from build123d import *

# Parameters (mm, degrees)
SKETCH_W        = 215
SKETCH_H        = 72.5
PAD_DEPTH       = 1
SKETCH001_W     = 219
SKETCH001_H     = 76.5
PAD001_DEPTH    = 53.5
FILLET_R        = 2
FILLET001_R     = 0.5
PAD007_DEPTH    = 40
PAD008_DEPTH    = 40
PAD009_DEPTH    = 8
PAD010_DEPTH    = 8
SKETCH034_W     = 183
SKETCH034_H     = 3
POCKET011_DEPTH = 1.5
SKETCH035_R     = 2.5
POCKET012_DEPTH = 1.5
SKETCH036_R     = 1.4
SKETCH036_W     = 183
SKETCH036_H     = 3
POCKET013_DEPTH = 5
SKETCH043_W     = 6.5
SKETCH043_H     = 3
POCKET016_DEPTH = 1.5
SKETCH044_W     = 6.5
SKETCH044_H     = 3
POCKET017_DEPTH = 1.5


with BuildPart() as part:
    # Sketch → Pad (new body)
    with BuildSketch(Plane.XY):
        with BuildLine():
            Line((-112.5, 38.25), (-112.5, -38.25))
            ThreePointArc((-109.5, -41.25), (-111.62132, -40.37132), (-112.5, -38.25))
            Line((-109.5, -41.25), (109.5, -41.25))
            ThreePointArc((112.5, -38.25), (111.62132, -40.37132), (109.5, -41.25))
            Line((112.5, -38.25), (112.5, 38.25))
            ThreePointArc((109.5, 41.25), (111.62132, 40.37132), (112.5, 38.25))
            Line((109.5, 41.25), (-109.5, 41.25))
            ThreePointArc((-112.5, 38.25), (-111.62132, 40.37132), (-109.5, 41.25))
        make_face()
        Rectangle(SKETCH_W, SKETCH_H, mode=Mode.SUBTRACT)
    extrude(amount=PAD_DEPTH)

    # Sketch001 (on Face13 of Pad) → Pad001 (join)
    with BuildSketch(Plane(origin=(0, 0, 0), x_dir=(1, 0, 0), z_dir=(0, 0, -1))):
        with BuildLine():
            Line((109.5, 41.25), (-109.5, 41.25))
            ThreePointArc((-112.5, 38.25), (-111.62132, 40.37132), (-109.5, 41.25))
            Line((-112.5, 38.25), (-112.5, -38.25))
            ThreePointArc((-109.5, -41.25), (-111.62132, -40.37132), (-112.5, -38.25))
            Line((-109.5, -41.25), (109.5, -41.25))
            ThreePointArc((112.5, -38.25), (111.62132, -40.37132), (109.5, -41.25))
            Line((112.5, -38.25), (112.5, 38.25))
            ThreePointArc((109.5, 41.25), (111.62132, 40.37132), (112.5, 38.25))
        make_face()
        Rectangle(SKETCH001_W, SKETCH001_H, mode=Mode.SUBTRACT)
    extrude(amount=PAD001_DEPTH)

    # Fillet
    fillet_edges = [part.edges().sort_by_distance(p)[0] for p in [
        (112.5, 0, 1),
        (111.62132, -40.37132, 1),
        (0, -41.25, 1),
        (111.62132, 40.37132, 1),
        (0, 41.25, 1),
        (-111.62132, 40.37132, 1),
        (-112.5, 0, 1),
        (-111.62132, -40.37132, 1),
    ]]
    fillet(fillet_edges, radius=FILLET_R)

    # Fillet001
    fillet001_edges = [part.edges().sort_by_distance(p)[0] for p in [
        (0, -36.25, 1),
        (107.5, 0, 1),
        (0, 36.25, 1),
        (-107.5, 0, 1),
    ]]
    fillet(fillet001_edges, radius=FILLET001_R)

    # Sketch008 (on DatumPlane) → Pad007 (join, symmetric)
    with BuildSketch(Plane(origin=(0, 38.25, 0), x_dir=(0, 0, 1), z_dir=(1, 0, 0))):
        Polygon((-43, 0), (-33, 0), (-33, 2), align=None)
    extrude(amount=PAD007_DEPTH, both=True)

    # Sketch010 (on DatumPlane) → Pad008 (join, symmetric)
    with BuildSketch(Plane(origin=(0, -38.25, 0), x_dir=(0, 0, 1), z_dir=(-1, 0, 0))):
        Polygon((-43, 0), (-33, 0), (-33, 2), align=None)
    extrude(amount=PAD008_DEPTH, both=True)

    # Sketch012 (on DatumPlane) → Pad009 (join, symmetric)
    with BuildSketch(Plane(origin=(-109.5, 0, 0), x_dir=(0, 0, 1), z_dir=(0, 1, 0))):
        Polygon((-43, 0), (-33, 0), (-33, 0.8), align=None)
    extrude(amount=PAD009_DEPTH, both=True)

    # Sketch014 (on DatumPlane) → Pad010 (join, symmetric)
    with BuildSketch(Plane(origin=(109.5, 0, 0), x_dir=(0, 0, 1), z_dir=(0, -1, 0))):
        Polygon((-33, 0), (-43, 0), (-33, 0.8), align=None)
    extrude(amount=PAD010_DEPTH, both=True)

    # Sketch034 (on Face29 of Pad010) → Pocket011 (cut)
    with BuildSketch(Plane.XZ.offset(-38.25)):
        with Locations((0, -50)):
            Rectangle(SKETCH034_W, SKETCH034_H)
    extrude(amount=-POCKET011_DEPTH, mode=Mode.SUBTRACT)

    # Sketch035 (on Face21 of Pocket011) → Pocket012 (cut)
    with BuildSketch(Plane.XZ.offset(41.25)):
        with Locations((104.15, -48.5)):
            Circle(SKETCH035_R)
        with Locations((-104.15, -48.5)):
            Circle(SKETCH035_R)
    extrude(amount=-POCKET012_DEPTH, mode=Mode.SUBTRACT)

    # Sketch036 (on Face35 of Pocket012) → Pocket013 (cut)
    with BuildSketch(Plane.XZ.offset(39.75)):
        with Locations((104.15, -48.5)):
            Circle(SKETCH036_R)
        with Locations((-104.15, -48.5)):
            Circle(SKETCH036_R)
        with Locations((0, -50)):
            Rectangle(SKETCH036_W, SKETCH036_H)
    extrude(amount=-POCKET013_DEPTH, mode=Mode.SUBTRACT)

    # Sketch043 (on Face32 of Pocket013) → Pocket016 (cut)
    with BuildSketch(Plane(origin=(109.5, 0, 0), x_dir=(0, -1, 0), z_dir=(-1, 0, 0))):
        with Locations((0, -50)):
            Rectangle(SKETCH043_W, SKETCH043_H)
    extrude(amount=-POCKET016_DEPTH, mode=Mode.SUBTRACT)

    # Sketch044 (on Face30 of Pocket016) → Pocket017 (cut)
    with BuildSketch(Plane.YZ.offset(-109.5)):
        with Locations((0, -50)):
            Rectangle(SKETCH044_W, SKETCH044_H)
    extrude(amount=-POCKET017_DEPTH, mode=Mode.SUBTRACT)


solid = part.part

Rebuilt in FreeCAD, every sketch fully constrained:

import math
import FreeCAD as App
import Part
import Sketcher
from FreeCAD import Vector


def edges_at(feature, points):
    """Names of the edges that pass closest to the given points."""
    edges = feature.Shape.Edges
    near = lambda p: min(range(len(edges)), key=lambda i: edges[i].distToShape(Part.Vertex(*p))[0])
    return sorted({f"Edge{near(p) + 1}" for p in points})

doc = App.newDocument("Part")
body = doc.addObject("PartDesign::Body", "Body")

sketch1 = body.newObject("Sketcher::SketchObject", "Sketch")
sketch1.AttachmentSupport = (doc.getObject("XY_Plane"), [""])
sketch1.MapMode = "FlatFace"
sketch1.addGeometry(Part.LineSegment(Vector(-112.5, 38.2, 0), Vector(-112.5, -38.2, 0)), False)
sketch1.addGeometry(Part.ArcOfCircle(Part.Circle(Vector(-109.5, -38.2, 0), Vector(0, 0, 1), 3), math.radians(-180), math.radians(-90)), False)
sketch1.addGeometry(Part.LineSegment(Vector(-109.5, -41.2, 0), Vector(109.5, -41.2, 0)), False)
sketch1.addGeometry(Part.ArcOfCircle(Part.Circle(Vector(109.5, -38.2, 0), Vector(0, 0, 1), 3), math.radians(-90), math.radians(0)), False)
sketch1.addGeometry(Part.LineSegment(Vector(112.5, -38.2, 0), Vector(112.5, 38.2, 0)), False)
sketch1.addGeometry(Part.ArcOfCircle(Part.Circle(Vector(109.5, 38.2, 0), Vector(0, 0, 1), 3), math.radians(0), math.radians(90)), False)
sketch1.addGeometry(Part.LineSegment(Vector(109.5, 41.2, 0), Vector(-109.5, 41.2, 0)), False)
sketch1.addGeometry(Part.ArcOfCircle(Part.Circle(Vector(-109.5, 38.2, 0), Vector(0, 0, 1), 3), math.radians(90), math.radians(180)), False)
sketch1.addGeometry(Part.LineSegment(Vector(107.5, -36.2, 0), Vector(-107.5, -36.2, 0)), False)
sketch1.addGeometry(Part.LineSegment(Vector(-107.5, -36.2, 0), Vector(-107.5, 36.2, 0)), False)
sketch1.addGeometry(Part.LineSegment(Vector(-107.5, 36.2, 0), Vector(107.5, 36.2, 0)), False)
sketch1.addGeometry(Part.LineSegment(Vector(107.5, 36.2, 0), Vector(107.5, -36.2, 0)), False)
sketch1.addConstraint(Sketcher.Constraint("Tangent", 0, 2, 1, 1))
sketch1.addConstraint(Sketcher.Constraint("Tangent", 1, 2, 2, 1))
sketch1.addConstraint(Sketcher.Constraint("Tangent", 2, 2, 3, 1))
sketch1.addConstraint(Sketcher.Constraint("Tangent", 3, 2, 4, 1))
sketch1.addConstraint(Sketcher.Constraint("Tangent", 4, 2, 5, 1))
sketch1.addConstraint(Sketcher.Constraint("Tangent", 5, 2, 6, 1))
sketch1.addConstraint(Sketcher.Constraint("Tangent", 6, 2, 7, 1))
sketch1.addConstraint(Sketcher.Constraint("Tangent", 7, 2, 0, 1))
sketch1.addConstraint(Sketcher.Constraint("Coincident", 8, 2, 9, 1))
sketch1.addConstraint(Sketcher.Constraint("Coincident", 9, 2, 10, 1))
sketch1.addConstraint(Sketcher.Constraint("Coincident", 10, 2, 11, 1))
sketch1.addConstraint(Sketcher.Constraint("Coincident", 11, 2, 8, 1))
sketch1.addConstraint(Sketcher.Constraint("Vertical", 0))
sketch1.addConstraint(Sketcher.Constraint("Horizontal", 2))
sketch1.addConstraint(Sketcher.Constraint("Vertical", 4))
sketch1.addConstraint(Sketcher.Constraint("Horizontal", 6))
sketch1.addConstraint(Sketcher.Constraint("Horizontal", 8))
sketch1.addConstraint(Sketcher.Constraint("Vertical", 9))
sketch1.addConstraint(Sketcher.Constraint("Horizontal", 10))
sketch1.addConstraint(Sketcher.Constraint("Vertical", 11))
sketch1.addConstraint(Sketcher.Constraint("Equal", 1, 3))
sketch1.addConstraint(Sketcher.Constraint("Equal", 3, 5))
sketch1.addConstraint(Sketcher.Constraint("Equal", 5, 7))
sketch1.addConstraint(Sketcher.Constraint("Symmetric", 1, 3, 5, 3, -1, 1))
sketch1.addConstraint(Sketcher.Constraint("Symmetric", 8, 2, 10, 2, -1, 1))
sketch1.addConstraint(Sketcher.Constraint("Radius", 1, 3.000001))
sketch1.addConstraint(Sketcher.Constraint("DistanceX", 2, 1, 2, 2, 219.0))
sketch1.addConstraint(Sketcher.Constraint("DistanceX", 8, 2, 8, 1, 215.0))
sketch1.addConstraint(Sketcher.Constraint("DistanceY", 0, 2, 0, 1, 76.5))
sketch1.addConstraint(Sketcher.Constraint("DistanceY", 9, 1, 9, 2, 72.5))
pad1 = body.newObject("PartDesign::Pad", "Pad")
pad1.Profile = sketch1
pad1.Length = 1

sketch2 = body.newObject("Sketcher::SketchObject", "Sketch001")
sketch2.AttachmentSupport = (doc.getObject("XY_Plane"), [""])
sketch2.MapMode = "FlatFace"
sketch2.addGeometry(Part.LineSegment(Vector(109.5, -41.2, 0), Vector(-109.5, -41.2, 0)), False)
sketch2.addGeometry(Part.ArcOfCircle(Part.Circle(Vector(-109.5, -38.2, 0), Vector(0, 0, 1), 3), math.radians(-180), math.radians(-90)), False)
sketch2.addGeometry(Part.LineSegment(Vector(-112.5, -38.2, 0), Vector(-112.5, 38.2, 0)), False)
sketch2.addGeometry(Part.ArcOfCircle(Part.Circle(Vector(-109.5, 38.2, 0), Vector(0, 0, 1), 3), math.radians(90), math.radians(180)), False)
sketch2.addGeometry(Part.LineSegment(Vector(-109.5, 41.2, 0), Vector(109.5, 41.2, 0)), False)
sketch2.addGeometry(Part.ArcOfCircle(Part.Circle(Vector(109.5, 38.2, 0), Vector(0, 0, 1), 3), math.radians(0), math.radians(90)), False)
sketch2.addGeometry(Part.LineSegment(Vector(112.5, 38.2, 0), Vector(112.5, -38.2, 0)), False)
sketch2.addGeometry(Part.ArcOfCircle(Part.Circle(Vector(109.5, -38.2, 0), Vector(0, 0, 1), 3), math.radians(-90), math.radians(0)), False)
sketch2.addGeometry(Part.LineSegment(Vector(109.5, 38.2, 0), Vector(-109.5, 38.2, 0)), False)
sketch2.addGeometry(Part.LineSegment(Vector(-109.5, 38.2, 0), Vector(-109.5, -38.2, 0)), False)
sketch2.addGeometry(Part.LineSegment(Vector(-109.5, -38.2, 0), Vector(109.5, -38.2, 0)), False)
sketch2.addGeometry(Part.LineSegment(Vector(109.5, -38.2, 0), Vector(109.5, 38.2, 0)), False)
sketch2.addConstraint(Sketcher.Constraint("Tangent", 0, 2, 1, 2))
sketch2.addConstraint(Sketcher.Constraint("Tangent", 1, 1, 2, 1))
sketch2.addConstraint(Sketcher.Constraint("Tangent", 2, 2, 3, 2))
sketch2.addConstraint(Sketcher.Constraint("Tangent", 3, 1, 4, 1))
sketch2.addConstraint(Sketcher.Constraint("Tangent", 4, 2, 5, 2))
sketch2.addConstraint(Sketcher.Constraint("Tangent", 5, 1, 6, 1))
sketch2.addConstraint(Sketcher.Constraint("Tangent", 6, 2, 7, 2))
sketch2.addConstraint(Sketcher.Constraint("Tangent", 7, 1, 0, 1))
sketch2.addConstraint(Sketcher.Constraint("Coincident", 8, 2, 9, 1))
sketch2.addConstraint(Sketcher.Constraint("Coincident", 9, 2, 10, 1))
sketch2.addConstraint(Sketcher.Constraint("Coincident", 10, 2, 11, 1))
sketch2.addConstraint(Sketcher.Constraint("Coincident", 11, 2, 8, 1))
sketch2.addConstraint(Sketcher.Constraint("Horizontal", 0))
sketch2.addConstraint(Sketcher.Constraint("Vertical", 2))
sketch2.addConstraint(Sketcher.Constraint("Horizontal", 4))
sketch2.addConstraint(Sketcher.Constraint("Vertical", 6))
sketch2.addConstraint(Sketcher.Constraint("Horizontal", 8))
sketch2.addConstraint(Sketcher.Constraint("Vertical", 9))
sketch2.addConstraint(Sketcher.Constraint("Horizontal", 10))
sketch2.addConstraint(Sketcher.Constraint("Vertical", 11))
sketch2.addConstraint(Sketcher.Constraint("Coincident", 8, 2, 3, 3))
sketch2.addConstraint(Sketcher.Constraint("Coincident", 9, 2, 1, 3))
sketch2.addConstraint(Sketcher.Constraint("Coincident", 10, 2, 7, 3))
sketch2.addConstraint(Sketcher.Constraint("Equal", 3, 5))
sketch2.addConstraint(Sketcher.Constraint("Symmetric", 1, 3, 5, 3, -1, 1))
sketch2.addConstraint(Sketcher.Constraint("Radius", 1, 3.000001))
sketch2.addConstraint(Sketcher.Constraint("DistanceX", 0, 2, 0, 1, 219.0))
sketch2.addConstraint(Sketcher.Constraint("DistanceY", 2, 1, 2, 2, 76.5))
pad2 = body.newObject("PartDesign::Pad", "Pad001")
pad2.Profile = sketch2
pad2.Length = 53.5
pad2.Reversed = True
doc.recompute()

fillet = body.newObject("PartDesign::Fillet", "Fillet")
fillet.Base = (pad2, edges_at(pad2, [
    (112.5, 0, 1),
    (111.621, -40.371, 1),
    (0, -41.25, 1),
    (111.621, 40.371, 1),
    (0, 41.25, 1),
    (-111.621, 40.371, 1),
    (-112.5, 0, 1),
    (-111.621, -40.371, 1),
]))
fillet.Radius = 2
doc.recompute()

fillet2 = body.newObject("PartDesign::Fillet", "Fillet001")
fillet2.Base = (fillet, edges_at(fillet, [
    (0, -36.25, 1),
    (107.5, 0, 1),
    (0, 36.25, 1),
    (-107.5, 0, 1),
]))
fillet2.Radius = 0.5

sketch3 = body.newObject("Sketcher::SketchObject", "Sketch002")
sketch3.AttachmentSupport = (doc.getObject("YZ_Plane"), [""])
sketch3.MapMode = "FlatFace"
sketch3.addGeometry(Part.LineSegment(Vector(38.2, -43, 0), Vector(38.2, -33, 0)), False)
sketch3.addGeometry(Part.LineSegment(Vector(38.2, -33, 0), Vector(36.2, -33, 0)), False)
sketch3.addGeometry(Part.LineSegment(Vector(36.2, -33, 0), Vector(38.2, -43, 0)), False)
sketch3.addConstraint(Sketcher.Constraint("Coincident", 0, 2, 1, 1))
sketch3.addConstraint(Sketcher.Constraint("Coincident", 1, 2, 2, 1))
sketch3.addConstraint(Sketcher.Constraint("Coincident", 2, 2, 0, 1))
sketch3.addConstraint(Sketcher.Constraint("Vertical", 0))
sketch3.addConstraint(Sketcher.Constraint("Horizontal", 1))
sketch3.addConstraint(Sketcher.Constraint("DistanceX", 1, 2, 1, 1, 2.0))
sketch3.addConstraint(Sketcher.Constraint("DistanceY", 0, 1, 0, 2, 10.0))
sketch3.addConstraint(Sketcher.Constraint("DistanceY", 0, 2, -1, 1, 33.0))
sketch3.addConstraint(Sketcher.Constraint("DistanceX", -1, 1, 0, 2, 38.25))
pad3 = body.newObject("PartDesign::Pad", "Pad002")
pad3.Profile = sketch3
pad3.Length = 80
pad3.Midplane = True

sketch4 = body.newObject("Sketcher::SketchObject", "Sketch003")
sketch4.AttachmentSupport = (doc.getObject("YZ_Plane"), [""])
sketch4.MapMode = "FlatFace"
sketch4.addGeometry(Part.LineSegment(Vector(-38.2, -43, 0), Vector(-38.2, -33, 0)), False)
sketch4.addGeometry(Part.LineSegment(Vector(-38.2, -33, 0), Vector(-36.2, -33, 0)), False)
sketch4.addGeometry(Part.LineSegment(Vector(-36.2, -33, 0), Vector(-38.2, -43, 0)), False)
sketch4.addConstraint(Sketcher.Constraint("Coincident", 0, 2, 1, 1))
sketch4.addConstraint(Sketcher.Constraint("Coincident", 1, 2, 2, 1))
sketch4.addConstraint(Sketcher.Constraint("Coincident", 2, 2, 0, 1))
sketch4.addConstraint(Sketcher.Constraint("Vertical", 0))
sketch4.addConstraint(Sketcher.Constraint("Horizontal", 1))
sketch4.addConstraint(Sketcher.Constraint("DistanceX", 1, 1, 1, 2, 2.0))
sketch4.addConstraint(Sketcher.Constraint("DistanceY", 0, 1, 0, 2, 10.0))
sketch4.addConstraint(Sketcher.Constraint("DistanceY", 0, 2, -1, 1, 33.0))
sketch4.addConstraint(Sketcher.Constraint("DistanceX", 0, 2, -1, 1, 38.25))
pad4 = body.newObject("PartDesign::Pad", "Pad003")
pad4.Profile = sketch4
pad4.Length = 80
pad4.Midplane = True

sketch5 = body.newObject("Sketcher::SketchObject", "Sketch004")
sketch5.AttachmentSupport = (doc.getObject("XZ_Plane"), [""])
sketch5.MapMode = "FlatFace"
sketch5.addGeometry(Part.LineSegment(Vector(-109.5, -43, 0), Vector(-109.5, -33, 0)), False)
sketch5.addGeometry(Part.LineSegment(Vector(-109.5, -33, 0), Vector(-108.7, -33, 0)), False)
sketch5.addGeometry(Part.LineSegment(Vector(-108.7, -33, 0), Vector(-109.5, -43, 0)), False)
sketch5.addConstraint(Sketcher.Constraint("Coincident", 0, 2, 1, 1))
sketch5.addConstraint(Sketcher.Constraint("Coincident", 1, 2, 2, 1))
sketch5.addConstraint(Sketcher.Constraint("Coincident", 2, 2, 0, 1))
sketch5.addConstraint(Sketcher.Constraint("Vertical", 0))
sketch5.addConstraint(Sketcher.Constraint("Horizontal", 1))
sketch5.addConstraint(Sketcher.Constraint("DistanceY", 0, 1, 0, 2, 10.0))
sketch5.addConstraint(Sketcher.Constraint("DistanceX", 1, 1, 1, 2, 0.8))
sketch5.addConstraint(Sketcher.Constraint("DistanceY", 0, 2, -1, 1, 33.0))
sketch5.addConstraint(Sketcher.Constraint("DistanceX", 0, 2, -1, 1, 109.5))
pad5 = body.newObject("PartDesign::Pad", "Pad004")
pad5.Profile = sketch5
pad5.Length = 16
pad5.Midplane = True

sketch6 = body.newObject("Sketcher::SketchObject", "Sketch005")
sketch6.AttachmentSupport = (doc.getObject("XZ_Plane"), [""])
sketch6.MapMode = "FlatFace"
sketch6.addGeometry(Part.LineSegment(Vector(109.5, -43, 0), Vector(109.5, -33, 0)), False)
sketch6.addGeometry(Part.LineSegment(Vector(109.5, -33, 0), Vector(108.7, -33, 0)), False)
sketch6.addGeometry(Part.LineSegment(Vector(108.7, -33, 0), Vector(109.5, -43, 0)), False)
sketch6.addConstraint(Sketcher.Constraint("Coincident", 0, 2, 1, 1))
sketch6.addConstraint(Sketcher.Constraint("Coincident", 1, 2, 2, 1))
sketch6.addConstraint(Sketcher.Constraint("Coincident", 2, 2, 0, 1))
sketch6.addConstraint(Sketcher.Constraint("Vertical", 0))
sketch6.addConstraint(Sketcher.Constraint("Horizontal", 1))
sketch6.addConstraint(Sketcher.Constraint("DistanceY", 0, 1, 0, 2, 10.0))
sketch6.addConstraint(Sketcher.Constraint("DistanceX", 1, 2, 1, 1, 0.8))
sketch6.addConstraint(Sketcher.Constraint("DistanceY", 0, 2, -1, 1, 33.0))
sketch6.addConstraint(Sketcher.Constraint("DistanceX", -1, 1, 0, 2, 109.5))
pad6 = body.newObject("PartDesign::Pad", "Pad005")
pad6.Profile = sketch6
pad6.Length = 16
pad6.Midplane = True

sketch7 = body.newObject("Sketcher::SketchObject", "Sketch006")
sketch7.AttachmentSupport = (doc.getObject("XZ_Plane"), [""])
sketch7.MapMode = "FlatFace"
sketch7.AttachmentOffset = App.Placement(Vector(0, 0, -38.25), App.Rotation())
sketch7.addGeometry(Part.LineSegment(Vector(-91.5, -48.5, 0), Vector(-91.5, -51.5, 0)), False)
sketch7.addGeometry(Part.LineSegment(Vector(-91.5, -51.5, 0), Vector(91.5, -51.5, 0)), False)
sketch7.addGeometry(Part.LineSegment(Vector(91.5, -51.5, 0), Vector(91.5, -48.5, 0)), False)
sketch7.addGeometry(Part.LineSegment(Vector(91.5, -48.5, 0), Vector(-91.5, -48.5, 0)), False)
sketch7.addConstraint(Sketcher.Constraint("Coincident", 0, 2, 1, 1))
sketch7.addConstraint(Sketcher.Constraint("Coincident", 1, 2, 2, 1))
sketch7.addConstraint(Sketcher.Constraint("Coincident", 2, 2, 3, 1))
sketch7.addConstraint(Sketcher.Constraint("Coincident", 3, 2, 0, 1))
sketch7.addConstraint(Sketcher.Constraint("Vertical", 0))
sketch7.addConstraint(Sketcher.Constraint("Horizontal", 1))
sketch7.addConstraint(Sketcher.Constraint("Vertical", 2))
sketch7.addConstraint(Sketcher.Constraint("Horizontal", 3))
sketch7.addConstraint(Sketcher.Constraint("DistanceX", 1, 1, 1, 2, 183.0))
sketch7.addConstraint(Sketcher.Constraint("DistanceY", 0, 2, 0, 1, 3.0))
sketch7.addConstraint(Sketcher.Constraint("DistanceX", 0, 2, -1, 1, 91.5))
sketch7.addConstraint(Sketcher.Constraint("DistanceY", 0, 2, -1, 1, 51.5))
pocket1 = body.newObject("PartDesign::Pocket", "Pocket")
pocket1.Profile = sketch7
pocket1.Length = 1.5

sketch8 = body.newObject("Sketcher::SketchObject", "Sketch007")
sketch8.AttachmentSupport = (doc.getObject("XZ_Plane"), [""])
sketch8.MapMode = "FlatFace"
sketch8.AttachmentOffset = App.Placement(Vector(0, 0, 41.25), App.Rotation())
sketch8.addGeometry(Part.Circle(Vector(104.2, -48.5, 0), Vector(0, 0, 1), 2.5), False)
sketch8.addGeometry(Part.Circle(Vector(-104.2, -48.5, 0), Vector(0, 0, 1), 2.5), False)
sketch8.addConstraint(Sketcher.Constraint("Equal", 0, 1))
sketch8.addConstraint(Sketcher.Constraint("Symmetric", 0, 3, 1, 3, -2))
sketch8.addConstraint(Sketcher.Constraint("Diameter", 0, 5.0))
sketch8.addConstraint(Sketcher.Constraint("DistanceY", 0, 3, -1, 1, 48.5))
sketch8.addConstraint(Sketcher.Constraint("DistanceX", 1, 3, 0, 3, 208.3))
pocket2 = body.newObject("PartDesign::Pocket", "Pocket001")
pocket2.Profile = sketch8
pocket2.Length = 1.5

sketch9 = body.newObject("Sketcher::SketchObject", "Sketch008")
sketch9.AttachmentSupport = (doc.getObject("XZ_Plane"), [""])
sketch9.MapMode = "FlatFace"
sketch9.AttachmentOffset = App.Placement(Vector(0, 0, 39.75), App.Rotation())
sketch9.addGeometry(Part.Circle(Vector(104.2, -48.5, 0), Vector(0, 0, 1), 1.4), False)
sketch9.addGeometry(Part.Circle(Vector(-104.2, -48.5, 0), Vector(0, 0, 1), 1.4), False)
sketch9.addGeometry(Part.LineSegment(Vector(-91.5, -48.5, 0), Vector(-91.5, -51.5, 0)), False)
sketch9.addGeometry(Part.LineSegment(Vector(-91.5, -51.5, 0), Vector(91.5, -51.5, 0)), False)
sketch9.addGeometry(Part.LineSegment(Vector(91.5, -51.5, 0), Vector(91.5, -48.5, 0)), False)
sketch9.addGeometry(Part.LineSegment(Vector(91.5, -48.5, 0), Vector(-91.5, -48.5, 0)), False)
sketch9.addConstraint(Sketcher.Constraint("Coincident", 2, 2, 3, 1))
sketch9.addConstraint(Sketcher.Constraint("Coincident", 3, 2, 4, 1))
sketch9.addConstraint(Sketcher.Constraint("Coincident", 4, 2, 5, 1))
sketch9.addConstraint(Sketcher.Constraint("Coincident", 5, 2, 2, 1))
sketch9.addConstraint(Sketcher.Constraint("Vertical", 2))
sketch9.addConstraint(Sketcher.Constraint("Horizontal", 3))
sketch9.addConstraint(Sketcher.Constraint("Vertical", 4))
sketch9.addConstraint(Sketcher.Constraint("Horizontal", 5))
sketch9.addConstraint(Sketcher.Constraint("Equal", 0, 1))
sketch9.addConstraint(Sketcher.Constraint("Symmetric", 0, 3, 1, 3, -2))
sketch9.addConstraint(Sketcher.Constraint("Horizontal", 1, 3, 4, 2))
sketch9.addConstraint(Sketcher.Constraint("Diameter", 0, 2.8))
sketch9.addConstraint(Sketcher.Constraint("DistanceX", 3, 1, 3, 2, 183.0))
sketch9.addConstraint(Sketcher.Constraint("DistanceY", 2, 2, 2, 1, 3.0))
sketch9.addConstraint(Sketcher.Constraint("DistanceY", 0, 3, -1, 1, 48.5))
sketch9.addConstraint(Sketcher.Constraint("DistanceX", 2, 2, -1, 1, 91.5))
sketch9.addConstraint(Sketcher.Constraint("DistanceX", 1, 3, 0, 3, 208.3))
pocket3 = body.newObject("PartDesign::Pocket", "Pocket002")
pocket3.Profile = sketch9
pocket3.Length = 5

sketch10 = body.newObject("Sketcher::SketchObject", "Sketch009")
sketch10.AttachmentSupport = (doc.getObject("YZ_Plane"), [""])
sketch10.MapMode = "FlatFace"
sketch10.AttachmentOffset = App.Placement(Vector(0, 0, 109.5), App.Rotation())
sketch10.addGeometry(Part.LineSegment(Vector(3.2, -48.5, 0), Vector(3.2, -51.5, 0)), False)
sketch10.addGeometry(Part.LineSegment(Vector(3.2, -51.5, 0), Vector(-3.2, -51.5, 0)), False)
sketch10.addGeometry(Part.LineSegment(Vector(-3.2, -51.5, 0), Vector(-3.2, -48.5, 0)), False)
sketch10.addGeometry(Part.LineSegment(Vector(-3.2, -48.5, 0), Vector(3.2, -48.5, 0)), False)
sketch10.addConstraint(Sketcher.Constraint("Coincident", 0, 2, 1, 1))
sketch10.addConstraint(Sketcher.Constraint("Coincident", 1, 2, 2, 1))
sketch10.addConstraint(Sketcher.Constraint("Coincident", 2, 2, 3, 1))
sketch10.addConstraint(Sketcher.Constraint("Coincident", 3, 2, 0, 1))
sketch10.addConstraint(Sketcher.Constraint("Vertical", 0))
sketch10.addConstraint(Sketcher.Constraint("Horizontal", 1))
sketch10.addConstraint(Sketcher.Constraint("Vertical", 2))
sketch10.addConstraint(Sketcher.Constraint("Horizontal", 3))
sketch10.addConstraint(Sketcher.Constraint("DistanceY", 0, 2, 0, 1, 3.0))
sketch10.addConstraint(Sketcher.Constraint("DistanceX", 1, 2, 1, 1, 6.5))
sketch10.addConstraint(Sketcher.Constraint("DistanceY", 0, 2, -1, 1, 51.5))
sketch10.addConstraint(Sketcher.Constraint("DistanceX", -1, 1, 0, 2, 3.25))
pocket4 = body.newObject("PartDesign::Pocket", "Pocket003")
pocket4.Profile = sketch10
pocket4.Length = 1.5
pocket4.Reversed = True

sketch11 = body.newObject("Sketcher::SketchObject", "Sketch010")
sketch11.AttachmentSupport = (doc.getObject("YZ_Plane"), [""])
sketch11.MapMode = "FlatFace"
sketch11.AttachmentOffset = App.Placement(Vector(0, 0, -109.5), App.Rotation())
sketch11.addGeometry(Part.LineSegment(Vector(-3.2, -48.5, 0), Vector(-3.2, -51.5, 0)), False)
sketch11.addGeometry(Part.LineSegment(Vector(-3.2, -51.5, 0), Vector(3.2, -51.5, 0)), False)
sketch11.addGeometry(Part.LineSegment(Vector(3.2, -51.5, 0), Vector(3.2, -48.5, 0)), False)
sketch11.addGeometry(Part.LineSegment(Vector(3.2, -48.5, 0), Vector(-3.2, -48.5, 0)), False)
sketch11.addConstraint(Sketcher.Constraint("Coincident", 0, 2, 1, 1))
sketch11.addConstraint(Sketcher.Constraint("Coincident", 1, 2, 2, 1))
sketch11.addConstraint(Sketcher.Constraint("Coincident", 2, 2, 3, 1))
sketch11.addConstraint(Sketcher.Constraint("Coincident", 3, 2, 0, 1))
sketch11.addConstraint(Sketcher.Constraint("Vertical", 0))
sketch11.addConstraint(Sketcher.Constraint("Horizontal", 1))
sketch11.addConstraint(Sketcher.Constraint("Vertical", 2))
sketch11.addConstraint(Sketcher.Constraint("Horizontal", 3))
sketch11.addConstraint(Sketcher.Constraint("DistanceY", 0, 2, 0, 1, 3.0))
sketch11.addConstraint(Sketcher.Constraint("DistanceX", 1, 1, 1, 2, 6.5))
sketch11.addConstraint(Sketcher.Constraint("DistanceY", 0, 2, -1, 1, 51.5))
sketch11.addConstraint(Sketcher.Constraint("DistanceX", 0, 2, -1, 1, 3.25))
pocket5 = body.newObject("PartDesign::Pocket", "Pocket004")
pocket5.Profile = sketch11
pocket5.Length = 1.5

doc.recompute()
